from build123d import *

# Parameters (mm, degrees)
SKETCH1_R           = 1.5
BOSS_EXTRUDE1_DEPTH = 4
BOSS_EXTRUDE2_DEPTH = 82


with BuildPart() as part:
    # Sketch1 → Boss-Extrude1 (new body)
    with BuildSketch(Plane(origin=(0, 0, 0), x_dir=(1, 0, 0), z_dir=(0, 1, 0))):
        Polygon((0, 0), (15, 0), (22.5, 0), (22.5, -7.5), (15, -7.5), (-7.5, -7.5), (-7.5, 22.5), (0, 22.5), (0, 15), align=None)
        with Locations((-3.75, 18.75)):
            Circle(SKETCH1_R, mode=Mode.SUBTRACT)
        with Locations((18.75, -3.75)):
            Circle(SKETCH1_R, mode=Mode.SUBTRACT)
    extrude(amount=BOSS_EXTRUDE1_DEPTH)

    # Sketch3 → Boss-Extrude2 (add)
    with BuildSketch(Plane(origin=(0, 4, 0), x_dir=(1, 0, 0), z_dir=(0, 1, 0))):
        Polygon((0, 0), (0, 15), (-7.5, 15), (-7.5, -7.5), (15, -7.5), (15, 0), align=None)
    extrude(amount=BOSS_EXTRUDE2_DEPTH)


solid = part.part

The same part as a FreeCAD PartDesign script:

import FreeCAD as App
import Part
import Sketcher
from FreeCAD import Vector

doc = App.newDocument("Part")
body = doc.addObject("PartDesign::Body", "Body")

# Sketch on XZ plane
sketch1 = doc.addObject("Sketcher::SketchObject", "Sketch")
body.addObject(sketch1)
sketch1.AttachmentSupport = (doc.XZ_Plane, [""])
sketch1.MapMode = "FlatFace"
sketch1.addGeometry(Part.LineSegment(Vector(22.5, 0, 0), Vector(0, 0, 0)), False)
sketch1.addGeometry(Part.LineSegment(Vector(0, 0, 0), Vector(0, -22.5, 0)), False)
sketch1.addGeometry(Part.LineSegment(Vector(0, -22.5, 0), Vector(-7.5, -22.5, 0)), False)
sketch1.addGeometry(Part.LineSegment(Vector(-7.5, -22.5, 0), Vector(-7.5, 7.5, 0)), False)
sketch1.addGeometry(Part.LineSegment(Vector(-7.5, 7.5, 0), Vector(22.5, 7.5, 0)), False)
sketch1.addGeometry(Part.LineSegment(Vector(22.5, 7.5, 0), Vector(22.5, 0, 0)), False)
sketch1.addGeometry(Part.Circle(Vector(18.8, 3.8, 0), Vector(0, 0, 1), 1.5), False)
sketch1.addGeometry(Part.Circle(Vector(-3.8, -18.8, 0), Vector(0, 0, 1), 1.5), False)
sketch1.addConstraint(Sketcher.Constraint("Coincident", 0, 2, 1, 1))
sketch1.addConstraint(Sketcher.Constraint("Coincident", 1, 2, 2, 1))
sketch1.addConstraint(Sketcher.Constraint("Coincident", 2, 2, 3, 1))
sketch1.addConstraint(Sketcher.Constraint("Coincident", 3, 2, 4, 1))
sketch1.addConstraint(Sketcher.Constraint("Coincident", 4, 2, 5, 1))
sketch1.addConstraint(Sketcher.Constraint("Coincident", 5, 2, 0, 1))
sketch1.addConstraint(Sketcher.Constraint("Horizontal", 0))
sketch1.addConstraint(Sketcher.Constraint("Vertical", 1))
sketch1.addConstraint(Sketcher.Constraint("Horizontal", 2))
sketch1.addConstraint(Sketcher.Constraint("Vertical", 3))
sketch1.addConstraint(Sketcher.Constraint("Horizontal", 4))
sketch1.addConstraint(Sketcher.Constraint("Vertical", 5))
sketch1.addConstraint(Sketcher.Constraint("Coincident", 0, 2, -1, 1))
sketch1.addConstraint(Sketcher.Constraint("Equal", 6, 7))
sketch1.addConstraint(Sketcher.Constraint("Equal", 0, 1))
sketch1.addConstraint(Sketcher.Constraint("Equal", 4, 3))
sketch1.addConstraint(Sketcher.Constraint("Diameter", 6, 3.0))
sketch1.addConstraint(Sketcher.Constraint("DistanceX", 4, 1, 4, 2, 30.0))
sketch1.addConstraint(Sketcher.Constraint("DistanceX", 0, 2, 0, 1, 22.5))
sketch1.addConstraint(Sketcher.Constraint("DistanceX", 7, 3, 6, 3, 22.5))
sketch1.addConstraint(Sketcher.Constraint("DistanceY", 7, 3, 6, 3, 22.5))
sketch1.addConstraint(Sketcher.Constraint("DistanceX", -1, 1, 6, 3, 18.75))
sketch1.addConstraint(Sketcher.Constraint("DistanceY", -1, 1, 6, 3, 3.75))
pad1 = doc.addObject("PartDesign::Pad", "Pad")
body.addObject(pad1)
pad1.Profile = sketch1
pad1.Length = 4
pad1.Reversed = True

# Sketch on XZ plane
sketch2 = doc.addObject("Sketcher::SketchObject", "Sketch001")
body.addObject(sketch2)
sketch2.AttachmentSupport = (doc.XZ_Plane, [""])
sketch2.MapMode = "FlatFace"
sketch2.AttachmentOffset = App.Placement(Vector(0, 0, -4), App.Rotation())
sketch2.addGeometry(Part.LineSegment(Vector(0, 0, 0), Vector(0, -15, 0)), False)
sketch2.addGeometry(Part.LineSegment(Vector(0, -15, 0), Vector(-8, -15, 0)), False)
sketch2.addGeometry(Part.LineSegment(Vector(-8, -15, 0), Vector(-8, 8, 0)), False)
sketch2.addGeometry(Part.LineSegment(Vector(-8, 8, 0), Vector(15, 8, 0)), False)
sketch2.addGeometry(Part.LineSegment(Vector(15, 8, 0), Vector(15, 0, 0)), False)
sketch2.addGeometry(Part.LineSegment(Vector(15, 0, 0), Vector(0, 0, 0)), False)
sketch2.addConstraint(Sketcher.Constraint("Coincident", 0, 2, 1, 1))
sketch2.addConstraint(Sketcher.Constraint("Coincident", 1, 2, 2, 1))
sketch2.addConstraint(Sketcher.Constraint("Coincident", 2, 2, 3, 1))
sketch2.addConstraint(Sketcher.Constraint("Coincident", 3, 2, 4, 1))
sketch2.addConstraint(Sketcher.Constraint("Coincident", 4, 2, 5, 1))
sketch2.addConstraint(Sketcher.Constraint("Coincident", 5, 2, 0, 1))
sketch2.addConstraint(Sketcher.Constraint("Vertical", 0))
sketch2.addConstraint(Sketcher.Constraint("Horizontal", 1))
sketch2.addConstraint(Sketcher.Constraint("Vertical", 2))
sketch2.addConstraint(Sketcher.Constraint("Horizontal", 3))
sketch2.addConstraint(Sketcher.Constraint("Vertical", 4))
sketch2.addConstraint(Sketcher.Constraint("Horizontal", 5))
sketch2.addConstraint(Sketcher.Constraint("Coincident", 5, 2, -1, 1))
sketch2.addConstraint(Sketcher.Constraint("Equal", 5, 0))
sketch2.addConstraint(Sketcher.Constraint("Equal", 3, 2))
sketch2.addConstraint(Sketcher.Constraint("DistanceX", 5, 2, 5, 1, 15.0))
sketch2.addConstraint(Sketcher.Constraint("DistanceX", 1, 2, 1, 1, 7.5))
pad2 = doc.addObject("PartDesign::Pad", "Pad001")
body.addObject(pad2)
pad2.Profile = sketch2
pad2.Length = 82
pad2.Reversed = True

doc.recompute()
